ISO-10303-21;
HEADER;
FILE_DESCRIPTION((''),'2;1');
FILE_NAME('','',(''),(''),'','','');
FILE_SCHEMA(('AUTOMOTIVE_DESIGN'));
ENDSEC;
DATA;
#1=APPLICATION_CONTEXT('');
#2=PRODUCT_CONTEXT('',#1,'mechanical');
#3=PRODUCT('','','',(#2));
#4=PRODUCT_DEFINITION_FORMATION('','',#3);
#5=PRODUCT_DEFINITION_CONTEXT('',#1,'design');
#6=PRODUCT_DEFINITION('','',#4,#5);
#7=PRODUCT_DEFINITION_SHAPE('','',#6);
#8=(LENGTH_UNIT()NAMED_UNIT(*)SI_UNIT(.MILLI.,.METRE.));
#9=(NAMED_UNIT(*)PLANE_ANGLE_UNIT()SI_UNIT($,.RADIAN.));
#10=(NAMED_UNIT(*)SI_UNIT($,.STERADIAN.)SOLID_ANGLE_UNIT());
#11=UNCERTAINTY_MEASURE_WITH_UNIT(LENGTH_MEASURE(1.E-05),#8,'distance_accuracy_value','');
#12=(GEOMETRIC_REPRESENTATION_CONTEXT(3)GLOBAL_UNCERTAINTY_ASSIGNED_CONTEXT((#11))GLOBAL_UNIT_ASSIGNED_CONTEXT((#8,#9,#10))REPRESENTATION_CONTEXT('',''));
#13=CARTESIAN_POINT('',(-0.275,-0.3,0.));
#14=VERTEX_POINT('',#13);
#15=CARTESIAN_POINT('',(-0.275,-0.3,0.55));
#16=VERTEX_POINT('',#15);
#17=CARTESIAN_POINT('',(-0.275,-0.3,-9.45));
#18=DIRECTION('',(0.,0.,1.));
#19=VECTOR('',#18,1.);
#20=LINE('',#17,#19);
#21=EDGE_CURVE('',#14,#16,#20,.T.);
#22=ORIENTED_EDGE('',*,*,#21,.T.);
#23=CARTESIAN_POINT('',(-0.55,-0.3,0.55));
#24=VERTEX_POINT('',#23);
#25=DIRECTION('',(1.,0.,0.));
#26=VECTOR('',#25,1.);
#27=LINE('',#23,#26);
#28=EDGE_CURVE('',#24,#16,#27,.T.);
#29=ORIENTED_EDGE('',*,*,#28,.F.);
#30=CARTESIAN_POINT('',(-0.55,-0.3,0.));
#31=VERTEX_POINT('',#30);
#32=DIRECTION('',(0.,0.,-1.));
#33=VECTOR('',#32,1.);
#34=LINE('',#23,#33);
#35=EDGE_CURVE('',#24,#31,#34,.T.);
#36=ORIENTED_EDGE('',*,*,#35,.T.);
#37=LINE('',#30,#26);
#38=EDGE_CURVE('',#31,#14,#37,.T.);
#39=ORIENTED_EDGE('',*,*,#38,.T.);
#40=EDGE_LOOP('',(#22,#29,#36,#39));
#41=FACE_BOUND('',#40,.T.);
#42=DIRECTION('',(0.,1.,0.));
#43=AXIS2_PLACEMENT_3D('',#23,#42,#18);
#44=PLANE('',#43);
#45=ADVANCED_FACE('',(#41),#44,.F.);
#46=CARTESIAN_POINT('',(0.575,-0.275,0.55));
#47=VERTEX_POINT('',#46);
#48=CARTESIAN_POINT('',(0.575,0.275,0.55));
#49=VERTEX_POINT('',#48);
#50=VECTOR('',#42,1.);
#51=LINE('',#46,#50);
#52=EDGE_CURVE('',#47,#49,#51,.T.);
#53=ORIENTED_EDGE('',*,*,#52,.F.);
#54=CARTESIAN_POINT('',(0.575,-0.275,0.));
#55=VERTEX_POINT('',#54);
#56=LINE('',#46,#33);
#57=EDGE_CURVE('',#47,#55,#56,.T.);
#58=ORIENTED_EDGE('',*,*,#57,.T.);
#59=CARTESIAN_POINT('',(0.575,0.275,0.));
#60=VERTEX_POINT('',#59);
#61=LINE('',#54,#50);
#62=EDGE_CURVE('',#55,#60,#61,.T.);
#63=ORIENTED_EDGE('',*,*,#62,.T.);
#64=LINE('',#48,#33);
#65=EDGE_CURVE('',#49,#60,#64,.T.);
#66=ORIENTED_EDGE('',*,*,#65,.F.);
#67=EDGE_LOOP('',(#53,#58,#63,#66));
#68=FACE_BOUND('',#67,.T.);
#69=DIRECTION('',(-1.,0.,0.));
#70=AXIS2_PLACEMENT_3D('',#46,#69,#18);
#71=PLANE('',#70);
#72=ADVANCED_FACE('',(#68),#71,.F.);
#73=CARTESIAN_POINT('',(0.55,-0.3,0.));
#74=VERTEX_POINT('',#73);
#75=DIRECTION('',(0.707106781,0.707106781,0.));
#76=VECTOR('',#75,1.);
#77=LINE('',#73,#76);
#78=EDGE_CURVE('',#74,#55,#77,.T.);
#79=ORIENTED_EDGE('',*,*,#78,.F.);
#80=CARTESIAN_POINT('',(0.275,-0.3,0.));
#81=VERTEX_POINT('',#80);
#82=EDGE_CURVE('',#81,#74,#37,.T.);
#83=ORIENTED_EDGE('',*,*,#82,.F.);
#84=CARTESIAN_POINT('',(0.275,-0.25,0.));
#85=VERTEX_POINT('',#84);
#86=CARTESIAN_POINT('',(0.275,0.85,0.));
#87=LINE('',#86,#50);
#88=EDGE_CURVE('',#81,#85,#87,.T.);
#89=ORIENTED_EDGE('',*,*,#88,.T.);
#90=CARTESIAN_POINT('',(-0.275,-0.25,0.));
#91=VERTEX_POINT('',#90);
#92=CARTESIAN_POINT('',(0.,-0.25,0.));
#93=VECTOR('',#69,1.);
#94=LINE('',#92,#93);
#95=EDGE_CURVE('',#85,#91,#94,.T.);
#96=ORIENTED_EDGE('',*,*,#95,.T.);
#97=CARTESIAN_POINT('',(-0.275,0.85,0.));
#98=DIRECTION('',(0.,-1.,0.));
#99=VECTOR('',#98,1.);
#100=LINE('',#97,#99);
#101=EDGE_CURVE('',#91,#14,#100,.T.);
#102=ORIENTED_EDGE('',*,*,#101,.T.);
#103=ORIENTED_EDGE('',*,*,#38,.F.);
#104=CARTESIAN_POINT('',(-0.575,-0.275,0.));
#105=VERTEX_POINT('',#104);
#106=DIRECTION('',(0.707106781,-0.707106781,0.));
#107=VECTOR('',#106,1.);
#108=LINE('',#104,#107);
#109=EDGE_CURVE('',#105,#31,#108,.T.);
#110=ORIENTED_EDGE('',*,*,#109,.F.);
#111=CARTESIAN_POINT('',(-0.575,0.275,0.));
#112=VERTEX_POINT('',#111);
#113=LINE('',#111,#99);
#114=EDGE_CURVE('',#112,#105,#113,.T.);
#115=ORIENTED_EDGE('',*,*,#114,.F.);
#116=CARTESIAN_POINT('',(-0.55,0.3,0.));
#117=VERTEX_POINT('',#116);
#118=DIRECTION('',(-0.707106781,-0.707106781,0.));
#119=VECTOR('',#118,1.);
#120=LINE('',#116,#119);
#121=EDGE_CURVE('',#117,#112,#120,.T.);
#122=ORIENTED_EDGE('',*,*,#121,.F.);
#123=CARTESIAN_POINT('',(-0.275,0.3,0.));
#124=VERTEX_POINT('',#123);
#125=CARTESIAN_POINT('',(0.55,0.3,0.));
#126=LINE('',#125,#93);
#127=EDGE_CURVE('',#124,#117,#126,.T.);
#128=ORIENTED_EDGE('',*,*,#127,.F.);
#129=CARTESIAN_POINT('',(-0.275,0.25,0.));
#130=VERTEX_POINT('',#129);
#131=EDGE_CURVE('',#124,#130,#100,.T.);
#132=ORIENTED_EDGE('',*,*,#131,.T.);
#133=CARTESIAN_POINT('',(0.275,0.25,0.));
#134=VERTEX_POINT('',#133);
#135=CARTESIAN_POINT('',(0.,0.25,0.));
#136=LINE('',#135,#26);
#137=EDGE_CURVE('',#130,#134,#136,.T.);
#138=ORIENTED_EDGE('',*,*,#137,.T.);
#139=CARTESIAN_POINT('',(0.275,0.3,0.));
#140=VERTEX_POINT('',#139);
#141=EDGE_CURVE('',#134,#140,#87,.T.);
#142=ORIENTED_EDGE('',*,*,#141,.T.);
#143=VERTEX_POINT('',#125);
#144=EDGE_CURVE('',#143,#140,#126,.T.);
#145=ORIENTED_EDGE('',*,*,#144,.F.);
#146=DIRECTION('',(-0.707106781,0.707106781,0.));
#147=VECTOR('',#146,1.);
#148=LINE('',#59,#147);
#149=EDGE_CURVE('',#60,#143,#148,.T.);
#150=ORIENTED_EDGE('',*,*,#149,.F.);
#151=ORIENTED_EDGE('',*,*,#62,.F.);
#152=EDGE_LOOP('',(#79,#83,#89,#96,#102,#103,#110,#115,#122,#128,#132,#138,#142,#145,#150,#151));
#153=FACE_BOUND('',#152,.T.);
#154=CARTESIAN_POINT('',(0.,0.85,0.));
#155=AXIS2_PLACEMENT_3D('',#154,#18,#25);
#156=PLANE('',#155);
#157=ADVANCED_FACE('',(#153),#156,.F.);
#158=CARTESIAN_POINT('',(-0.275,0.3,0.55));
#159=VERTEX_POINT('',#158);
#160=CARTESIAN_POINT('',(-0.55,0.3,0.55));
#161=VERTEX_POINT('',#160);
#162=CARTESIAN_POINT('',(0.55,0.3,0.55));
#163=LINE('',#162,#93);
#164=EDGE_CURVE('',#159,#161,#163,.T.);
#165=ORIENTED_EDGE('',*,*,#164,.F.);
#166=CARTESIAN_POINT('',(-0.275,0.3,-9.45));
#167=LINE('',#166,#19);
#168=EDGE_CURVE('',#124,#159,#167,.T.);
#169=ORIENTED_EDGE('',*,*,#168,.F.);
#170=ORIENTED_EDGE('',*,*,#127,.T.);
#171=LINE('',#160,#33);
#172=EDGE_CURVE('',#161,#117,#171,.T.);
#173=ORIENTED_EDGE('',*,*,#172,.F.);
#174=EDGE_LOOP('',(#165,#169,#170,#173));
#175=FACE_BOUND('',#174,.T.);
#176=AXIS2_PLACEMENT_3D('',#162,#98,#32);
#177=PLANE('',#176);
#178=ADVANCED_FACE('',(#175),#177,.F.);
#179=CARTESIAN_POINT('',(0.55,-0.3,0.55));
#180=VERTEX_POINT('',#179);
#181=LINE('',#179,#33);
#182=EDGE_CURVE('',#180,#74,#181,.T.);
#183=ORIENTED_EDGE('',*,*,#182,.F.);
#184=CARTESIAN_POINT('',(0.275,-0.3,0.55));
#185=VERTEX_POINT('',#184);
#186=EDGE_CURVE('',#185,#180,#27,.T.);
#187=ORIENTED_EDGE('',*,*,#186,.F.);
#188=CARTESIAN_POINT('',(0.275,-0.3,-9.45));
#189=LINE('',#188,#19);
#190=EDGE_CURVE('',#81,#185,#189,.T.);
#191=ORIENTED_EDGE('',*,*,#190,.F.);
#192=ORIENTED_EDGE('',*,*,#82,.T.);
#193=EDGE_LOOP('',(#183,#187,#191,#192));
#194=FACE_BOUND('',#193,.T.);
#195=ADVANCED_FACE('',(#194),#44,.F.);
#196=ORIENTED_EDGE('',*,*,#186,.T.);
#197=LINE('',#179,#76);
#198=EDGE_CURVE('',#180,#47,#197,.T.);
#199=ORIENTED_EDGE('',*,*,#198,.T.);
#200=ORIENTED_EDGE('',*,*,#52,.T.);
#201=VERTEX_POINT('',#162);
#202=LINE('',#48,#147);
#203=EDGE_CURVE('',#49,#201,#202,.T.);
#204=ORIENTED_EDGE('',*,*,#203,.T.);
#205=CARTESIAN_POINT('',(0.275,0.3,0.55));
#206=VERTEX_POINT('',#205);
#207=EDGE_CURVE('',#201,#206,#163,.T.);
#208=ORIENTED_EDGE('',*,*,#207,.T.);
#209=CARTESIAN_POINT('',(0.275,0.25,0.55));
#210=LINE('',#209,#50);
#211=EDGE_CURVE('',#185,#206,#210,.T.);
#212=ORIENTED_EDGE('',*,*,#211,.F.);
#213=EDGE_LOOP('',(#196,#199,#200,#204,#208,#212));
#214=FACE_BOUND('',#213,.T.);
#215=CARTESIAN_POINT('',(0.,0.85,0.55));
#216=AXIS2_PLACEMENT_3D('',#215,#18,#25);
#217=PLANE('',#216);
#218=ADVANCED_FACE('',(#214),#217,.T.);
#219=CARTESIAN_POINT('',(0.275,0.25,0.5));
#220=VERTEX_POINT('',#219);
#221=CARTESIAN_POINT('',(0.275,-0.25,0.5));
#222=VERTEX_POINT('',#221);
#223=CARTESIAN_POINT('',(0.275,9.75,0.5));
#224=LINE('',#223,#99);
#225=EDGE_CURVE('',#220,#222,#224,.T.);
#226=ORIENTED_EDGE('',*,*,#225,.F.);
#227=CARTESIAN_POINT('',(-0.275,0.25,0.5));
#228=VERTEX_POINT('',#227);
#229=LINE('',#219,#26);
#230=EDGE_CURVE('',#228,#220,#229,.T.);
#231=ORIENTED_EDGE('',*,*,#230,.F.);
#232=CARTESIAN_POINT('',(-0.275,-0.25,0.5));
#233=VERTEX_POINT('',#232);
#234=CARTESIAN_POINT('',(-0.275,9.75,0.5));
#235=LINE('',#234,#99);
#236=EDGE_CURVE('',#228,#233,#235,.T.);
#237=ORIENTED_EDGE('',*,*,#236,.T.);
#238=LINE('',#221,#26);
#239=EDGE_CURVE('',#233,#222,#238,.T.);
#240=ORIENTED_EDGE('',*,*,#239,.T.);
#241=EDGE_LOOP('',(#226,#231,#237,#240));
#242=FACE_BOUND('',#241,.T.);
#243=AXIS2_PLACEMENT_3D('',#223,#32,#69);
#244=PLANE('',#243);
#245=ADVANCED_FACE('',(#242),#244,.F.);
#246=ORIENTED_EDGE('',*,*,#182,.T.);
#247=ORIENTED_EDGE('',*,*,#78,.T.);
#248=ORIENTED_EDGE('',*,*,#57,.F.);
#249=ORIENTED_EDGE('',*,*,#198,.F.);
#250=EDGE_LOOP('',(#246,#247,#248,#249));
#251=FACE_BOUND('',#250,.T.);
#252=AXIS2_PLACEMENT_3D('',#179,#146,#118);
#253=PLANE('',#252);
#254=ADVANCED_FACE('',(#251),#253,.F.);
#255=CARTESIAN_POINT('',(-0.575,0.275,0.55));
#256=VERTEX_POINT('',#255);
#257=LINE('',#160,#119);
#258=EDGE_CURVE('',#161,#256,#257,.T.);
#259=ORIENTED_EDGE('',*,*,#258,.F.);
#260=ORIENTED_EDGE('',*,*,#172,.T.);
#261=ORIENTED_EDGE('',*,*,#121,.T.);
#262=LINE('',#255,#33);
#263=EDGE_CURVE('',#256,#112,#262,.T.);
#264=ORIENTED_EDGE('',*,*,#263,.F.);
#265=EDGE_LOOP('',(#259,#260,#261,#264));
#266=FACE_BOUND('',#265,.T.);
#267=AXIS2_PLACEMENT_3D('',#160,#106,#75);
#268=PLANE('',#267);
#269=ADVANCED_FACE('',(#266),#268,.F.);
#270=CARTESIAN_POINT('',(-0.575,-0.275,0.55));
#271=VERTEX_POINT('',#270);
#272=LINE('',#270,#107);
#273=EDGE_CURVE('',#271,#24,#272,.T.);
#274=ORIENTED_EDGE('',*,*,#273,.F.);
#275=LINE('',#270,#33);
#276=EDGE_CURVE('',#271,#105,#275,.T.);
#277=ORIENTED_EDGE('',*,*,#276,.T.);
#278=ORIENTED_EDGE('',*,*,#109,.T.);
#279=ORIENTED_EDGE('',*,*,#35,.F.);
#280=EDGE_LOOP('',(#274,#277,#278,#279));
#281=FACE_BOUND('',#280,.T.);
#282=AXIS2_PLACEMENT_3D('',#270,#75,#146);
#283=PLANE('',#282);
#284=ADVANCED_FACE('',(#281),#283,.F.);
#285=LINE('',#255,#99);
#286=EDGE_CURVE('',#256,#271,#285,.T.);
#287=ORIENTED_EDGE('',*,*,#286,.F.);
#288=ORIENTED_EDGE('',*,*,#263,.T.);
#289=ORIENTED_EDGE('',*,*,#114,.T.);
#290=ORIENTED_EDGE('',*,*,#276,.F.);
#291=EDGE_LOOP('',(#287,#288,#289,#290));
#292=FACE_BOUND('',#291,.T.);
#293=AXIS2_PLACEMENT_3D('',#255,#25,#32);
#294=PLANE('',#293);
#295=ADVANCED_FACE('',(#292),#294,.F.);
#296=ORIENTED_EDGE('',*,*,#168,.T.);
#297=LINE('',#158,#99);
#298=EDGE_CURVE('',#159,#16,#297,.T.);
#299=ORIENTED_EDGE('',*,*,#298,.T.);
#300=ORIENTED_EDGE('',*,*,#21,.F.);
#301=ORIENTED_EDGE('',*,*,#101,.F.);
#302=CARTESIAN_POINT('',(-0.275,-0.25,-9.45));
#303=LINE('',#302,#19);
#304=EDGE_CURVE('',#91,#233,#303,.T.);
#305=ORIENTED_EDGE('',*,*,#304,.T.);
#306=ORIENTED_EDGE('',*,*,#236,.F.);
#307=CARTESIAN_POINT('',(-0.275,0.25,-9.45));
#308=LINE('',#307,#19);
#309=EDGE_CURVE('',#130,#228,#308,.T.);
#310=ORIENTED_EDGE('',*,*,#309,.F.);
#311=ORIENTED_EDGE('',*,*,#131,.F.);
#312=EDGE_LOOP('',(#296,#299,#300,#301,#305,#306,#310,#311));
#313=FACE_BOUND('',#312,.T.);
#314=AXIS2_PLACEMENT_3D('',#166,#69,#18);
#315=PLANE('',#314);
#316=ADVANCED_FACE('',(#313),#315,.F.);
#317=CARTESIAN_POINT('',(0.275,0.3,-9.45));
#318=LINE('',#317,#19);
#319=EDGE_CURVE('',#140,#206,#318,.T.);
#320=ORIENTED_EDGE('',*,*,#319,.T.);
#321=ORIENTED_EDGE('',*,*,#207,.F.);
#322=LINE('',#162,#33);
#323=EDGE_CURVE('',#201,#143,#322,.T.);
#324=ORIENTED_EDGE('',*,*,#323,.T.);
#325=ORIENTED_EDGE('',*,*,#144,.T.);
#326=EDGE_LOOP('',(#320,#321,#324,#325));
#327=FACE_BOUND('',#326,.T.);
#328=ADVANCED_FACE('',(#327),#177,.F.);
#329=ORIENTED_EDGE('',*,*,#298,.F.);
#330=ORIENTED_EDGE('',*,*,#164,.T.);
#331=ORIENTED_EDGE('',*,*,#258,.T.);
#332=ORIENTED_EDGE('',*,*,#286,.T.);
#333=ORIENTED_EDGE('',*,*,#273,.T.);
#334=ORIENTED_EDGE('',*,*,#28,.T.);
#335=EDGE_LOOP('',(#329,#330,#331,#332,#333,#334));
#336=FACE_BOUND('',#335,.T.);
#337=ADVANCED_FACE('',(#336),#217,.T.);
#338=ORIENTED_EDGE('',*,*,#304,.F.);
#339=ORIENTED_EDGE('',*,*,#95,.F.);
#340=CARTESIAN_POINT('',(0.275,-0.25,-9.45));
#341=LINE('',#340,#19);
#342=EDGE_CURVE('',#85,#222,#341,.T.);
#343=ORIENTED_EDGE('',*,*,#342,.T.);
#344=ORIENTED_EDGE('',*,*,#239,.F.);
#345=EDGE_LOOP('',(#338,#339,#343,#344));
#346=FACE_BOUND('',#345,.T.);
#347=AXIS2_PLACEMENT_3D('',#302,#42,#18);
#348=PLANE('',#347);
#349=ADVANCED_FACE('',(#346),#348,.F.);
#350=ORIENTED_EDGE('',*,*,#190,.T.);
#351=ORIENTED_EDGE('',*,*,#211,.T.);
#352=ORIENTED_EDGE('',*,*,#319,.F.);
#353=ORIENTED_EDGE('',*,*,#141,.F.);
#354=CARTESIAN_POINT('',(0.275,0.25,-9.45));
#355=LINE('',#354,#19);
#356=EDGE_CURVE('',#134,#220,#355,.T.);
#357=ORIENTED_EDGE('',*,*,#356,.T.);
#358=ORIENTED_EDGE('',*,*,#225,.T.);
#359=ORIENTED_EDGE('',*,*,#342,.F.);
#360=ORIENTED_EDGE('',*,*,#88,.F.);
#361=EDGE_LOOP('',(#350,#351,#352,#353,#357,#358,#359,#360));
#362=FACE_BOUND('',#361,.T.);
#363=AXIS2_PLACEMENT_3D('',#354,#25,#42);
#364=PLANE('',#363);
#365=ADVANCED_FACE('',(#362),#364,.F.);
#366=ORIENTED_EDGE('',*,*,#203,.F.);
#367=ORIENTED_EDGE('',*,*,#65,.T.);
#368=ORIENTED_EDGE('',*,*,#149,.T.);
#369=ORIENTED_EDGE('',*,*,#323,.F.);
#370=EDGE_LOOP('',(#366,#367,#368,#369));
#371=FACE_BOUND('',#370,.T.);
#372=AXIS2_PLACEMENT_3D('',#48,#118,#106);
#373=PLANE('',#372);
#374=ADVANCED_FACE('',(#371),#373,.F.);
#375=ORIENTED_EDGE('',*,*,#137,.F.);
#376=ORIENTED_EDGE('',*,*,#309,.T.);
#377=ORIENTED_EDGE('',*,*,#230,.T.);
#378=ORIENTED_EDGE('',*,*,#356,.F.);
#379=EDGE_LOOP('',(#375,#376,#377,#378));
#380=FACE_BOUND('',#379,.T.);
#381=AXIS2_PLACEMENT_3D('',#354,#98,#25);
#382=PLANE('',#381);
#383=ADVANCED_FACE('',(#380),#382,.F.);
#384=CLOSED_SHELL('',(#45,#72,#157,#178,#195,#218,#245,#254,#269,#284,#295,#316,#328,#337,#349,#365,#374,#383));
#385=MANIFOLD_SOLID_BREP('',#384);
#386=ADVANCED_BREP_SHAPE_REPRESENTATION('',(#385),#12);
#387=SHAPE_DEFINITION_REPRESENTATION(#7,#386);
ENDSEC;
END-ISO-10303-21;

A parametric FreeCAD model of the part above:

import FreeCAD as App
import Part
import Sketcher
from FreeCAD import Vector
Q = App.Units.Quantity

doc = App.newDocument("Part")
body = doc.addObject("PartDesign::Body", "Body")

sketch1 = body.newObject("Sketcher::SketchObject", "Sketch")
sketch1.AttachmentSupport = (doc.getObject("XY_Plane"), [""])
sketch1.MapMode = "FlatFace"
sketch1.addGeometry([
    Part.LineSegment(Vector(0.55, 0.3, 0), Vector(-0.55, 0.3, 0)),
    Part.LineSegment(Vector(-0.55, 0.3, 0), Vector(-0.575, 0.275, 0)),
    Part.LineSegment(Vector(-0.575, 0.275, 0), Vector(-0.575, -0.275, 0)),
    Part.LineSegment(Vector(-0.575, -0.275, 0), Vector(-0.55, -0.3, 0)),
    Part.LineSegment(Vector(-0.55, -0.3, 0), Vector(0.55, -0.3, 0)),
    Part.LineSegment(Vector(0.55, -0.3, 0), Vector(0.575, -0.275, 0)),
    Part.LineSegment(Vector(0.575, -0.275, 0), Vector(0.575, 0.275, 0)),
    Part.LineSegment(Vector(0.575, 0.275, 0), Vector(0.55, 0.3, 0)),
], False)
sketch1.addConstraint([
    Sketcher.Constraint("Coincident", 0, 2, 1, 1),
    Sketcher.Constraint("Coincident", 1, 2, 2, 1),
    Sketcher.Constraint("Coincident", 2, 2, 3, 1),
    Sketcher.Constraint("Coincident", 3, 2, 4, 1),
    Sketcher.Constraint("Coincident", 4, 2, 5, 1),
    Sketcher.Constraint("Coincident", 5, 2, 6, 1),
    Sketcher.Constraint("Coincident", 6, 2, 7, 1),
    Sketcher.Constraint("Coincident", 7, 2, 0, 1),
    Sketcher.Constraint("Horizontal", 0),
    Sketcher.Constraint("Vertical", 2),
    Sketcher.Constraint("Horizontal", 4),
    Sketcher.Constraint("Vertical", 6),
    Sketcher.Constraint("Symmetric", 0, 2, 4, 2, -1, 1),
    Sketcher.Constraint("Symmetric", 1, 2, 5, 2, -1, 1),
    Sketcher.Constraint("Perpendicular", 1, 3),
    Sketcher.Constraint("Perpendicular", 5, 7),
    Sketcher.Constraint("Horizontal", 2, 2, 5, 2),
    Sketcher.Constraint("Horizontal", 1, 2, 6, 2),
    Sketcher.Constraint("Vertical", 0, 2, 3, 2),
    Sketcher.Constraint("DistanceX", 0, 2, 0, 1, Q("1.1 mm")),
    Sketcher.Constraint("DistanceY", 2, 2, 2, 1, Q("0.55 mm")),
    Sketcher.Constraint("DistanceY", -1, 1, 0, 2, Q("0.3 mm")),
])
pad1 = body.newObject("PartDesign::Pad", "Pad")
pad1.Profile = sketch1
pad1.Length = 0.55

sketch2 = body.newObject("Sketcher::SketchObject", "Sketch001")
sketch2.AttachmentSupport = (doc.getObject("XY_Plane"), [""])
sketch2.MapMode = "FlatFace"
sketch2.AttachmentOffset = App.Placement(Vector(0, 0, 0.55), App.Rotation())
sketch2.addGeometry([
    Part.LineSegment(Vector(-0.28, -0.25, 0), Vector(-0.28, -0.3, 0)),
    Part.LineSegment(Vector(-0.28, -0.3, 0), Vector(0.28, -0.3, 0)),
    Part.LineSegment(Vector(0.28, -0.3, 0), Vector(0.28, -0.25, 0)),
    Part.LineSegment(Vector(0.28, -0.25, 0), Vector(-0.28, -0.25, 0)),
    Part.LineSegment(Vector(-0.28, 0.3, 0), Vector(-0.28, 0.25, 0)),
    Part.LineSegment(Vector(-0.28, 0.25, 0), Vector(0.28, 0.25, 0)),
    Part.LineSegment(Vector(0.28, 0.25, 0), Vector(0.28, 0.3, 0)),
    Part.LineSegment(Vector(0.28, 0.3, 0), Vector(-0.28, 0.3, 0)),
], False)
sketch2.addConstraint([
    Sketcher.Constraint("Coincident", 0, 2, 1, 1),
    Sketcher.Constraint("Coincident", 1, 2, 2, 1),
    Sketcher.Constraint("Coincident", 2, 2, 3, 1),
    Sketcher.Constraint("Coincident", 3, 2, 0, 1),
    Sketcher.Constraint("Coincident", 4, 2, 5, 1),
    Sketcher.Constraint("Coincident", 5, 2, 6, 1),
    Sketcher.Constraint("Coincident", 6, 2, 7, 1),
    Sketcher.Constraint("Coincident", 7, 2, 4, 1),
    Sketcher.Constraint("Vertical", 0),
    Sketcher.Constraint("Horizontal", 1),
    Sketcher.Constraint("Vertical", 2),
    Sketcher.Constraint("Horizontal", 3),
    Sketcher.Constraint("Vertical", 4),
    Sketcher.Constraint("Horizontal", 5),
    Sketcher.Constraint("Vertical", 6),
    Sketcher.Constraint("Horizontal", 7),
    Sketcher.Constraint("Symmetric", 2, 2, 4, 2, -1, 1),
    Sketcher.Constraint("Symmetric", 0, 2, 6, 2, -1, 1),
    Sketcher.Constraint("Vertical", 3, 2, 4, 2),
    Sketcher.Constraint("DistanceX", 1, 1, 1, 2, Q("0.55 mm")),
    Sketcher.Constraint("DistanceY", 0, 2, 0, 1, Q("0.05 mm")),
    Sketcher.Constraint("DistanceY", 0, 2, -1, 1, Q("0.3 mm")),
])
pocket1 = body.newObject("PartDesign::Pocket", "Pocket")
pocket1.Profile = sketch2
pocket1.Length = 10

sketch3 = body.newObject("Sketcher::SketchObject", "Sketch002")
sketch3.AttachmentSupport = (doc.getObject("XZ_Plane"), [""])
sketch3.MapMode = "FlatFace"
sketch3.AttachmentOffset = App.Placement(Vector(0, 0, 0.25), App.Rotation())
sketch3.addGeometry([
    Part.LineSegment(Vector(-0.28, 0.55, 0), Vector(-0.28, 0.5, 0)),
    Part.LineSegment(Vector(-0.28, 0.5, 0), Vector(0.28, 0.5, 0)),
    Part.LineSegment(Vector(0.28, 0.5, 0), Vector(0.28, 0.55, 0)),
    Part.LineSegment(Vector(0.28, 0.55, 0), Vector(-0.28, 0.55, 0)),
], False)
sketch3.addConstraint([
    Sketcher.Constraint("Coincident", 0, 2, 1, 1),
    Sketcher.Constraint("Coincident", 1, 2, 2, 1),
    Sketcher.Constraint("Coincident", 2, 2, 3, 1),
    Sketcher.Constraint("Coincident", 3, 2, 0, 1),
    Sketcher.Constraint("Vertical", 0),
    Sketcher.Constraint("Horizontal", 1),
    Sketcher.Constraint("Vertical", 2),
    Sketcher.Constraint("Horizontal", 3),
    Sketcher.Constraint("DistanceX", 1, 1, 1, 2, Q("0.55 mm")),
    Sketcher.Constraint("DistanceY", 0, 2, 0, 1, Q("0.05 mm")),
    Sketcher.Constraint("DistanceY", -1, 1, 0, 2, Q("0.5 mm")),
    Sketcher.Constraint("DistanceX", 0, 2, -1, 1, Q("0.275 mm")),
])
pocket2 = body.newObject("PartDesign::Pocket", "Pocket001")
pocket2.Profile = sketch3
pocket2.Length = 10

doc.recompute()
